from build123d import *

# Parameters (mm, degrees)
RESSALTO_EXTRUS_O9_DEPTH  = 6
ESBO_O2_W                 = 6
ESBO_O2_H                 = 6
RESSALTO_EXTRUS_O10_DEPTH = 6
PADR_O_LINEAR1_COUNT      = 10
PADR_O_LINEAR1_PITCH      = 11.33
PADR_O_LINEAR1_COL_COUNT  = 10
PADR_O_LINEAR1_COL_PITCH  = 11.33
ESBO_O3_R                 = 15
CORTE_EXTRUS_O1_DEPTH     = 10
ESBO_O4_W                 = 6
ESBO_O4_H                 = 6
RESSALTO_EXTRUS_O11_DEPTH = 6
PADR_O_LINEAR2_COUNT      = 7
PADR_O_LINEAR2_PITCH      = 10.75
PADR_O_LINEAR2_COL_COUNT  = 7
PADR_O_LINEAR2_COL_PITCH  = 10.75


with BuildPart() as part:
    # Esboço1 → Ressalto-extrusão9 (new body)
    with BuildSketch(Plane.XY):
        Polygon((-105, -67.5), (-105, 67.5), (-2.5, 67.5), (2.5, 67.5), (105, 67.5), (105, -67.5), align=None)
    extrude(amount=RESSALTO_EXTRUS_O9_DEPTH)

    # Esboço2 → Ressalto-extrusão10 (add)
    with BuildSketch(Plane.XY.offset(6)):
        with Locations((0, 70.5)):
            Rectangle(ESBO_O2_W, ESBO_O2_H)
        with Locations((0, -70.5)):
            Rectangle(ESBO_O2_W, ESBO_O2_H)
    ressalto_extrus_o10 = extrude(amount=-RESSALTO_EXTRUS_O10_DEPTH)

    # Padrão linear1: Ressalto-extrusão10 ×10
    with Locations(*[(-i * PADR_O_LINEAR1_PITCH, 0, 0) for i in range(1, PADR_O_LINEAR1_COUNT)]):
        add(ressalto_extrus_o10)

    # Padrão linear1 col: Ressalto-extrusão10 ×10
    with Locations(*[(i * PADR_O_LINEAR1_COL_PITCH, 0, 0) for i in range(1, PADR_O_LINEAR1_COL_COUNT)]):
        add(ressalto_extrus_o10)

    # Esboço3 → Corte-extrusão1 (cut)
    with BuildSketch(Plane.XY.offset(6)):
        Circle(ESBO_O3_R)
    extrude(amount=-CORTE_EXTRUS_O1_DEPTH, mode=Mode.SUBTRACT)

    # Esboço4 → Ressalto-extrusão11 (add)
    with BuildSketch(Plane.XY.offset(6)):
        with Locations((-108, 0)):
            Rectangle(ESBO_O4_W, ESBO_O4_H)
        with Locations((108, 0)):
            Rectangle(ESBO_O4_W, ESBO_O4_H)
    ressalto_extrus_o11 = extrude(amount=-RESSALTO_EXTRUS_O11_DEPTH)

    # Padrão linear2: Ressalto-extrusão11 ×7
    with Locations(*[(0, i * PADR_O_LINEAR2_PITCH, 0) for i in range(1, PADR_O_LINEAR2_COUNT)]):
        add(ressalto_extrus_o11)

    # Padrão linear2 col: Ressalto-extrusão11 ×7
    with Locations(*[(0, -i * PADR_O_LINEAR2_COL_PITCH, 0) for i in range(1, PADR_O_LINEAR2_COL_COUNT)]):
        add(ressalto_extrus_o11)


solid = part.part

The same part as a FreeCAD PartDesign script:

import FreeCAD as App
import Part
import Sketcher
from FreeCAD import Vector

doc = App.newDocument("Part")
params = doc.addObject("Spreadsheet::Sheet", "Params")
for row, (alias, value) in enumerate([
    ("sketch1_width", "210 mm"),
    ("sketch1_height", "135 mm"),
    ("pad1_length", "6 mm"),
    ("sketch2_width", "6 mm"),
    ("pad2_length", "6 mm"),
    ("linearpattern_pitch", "11.33 mm"),
    ("linearpattern2_pitch", "11.33 mm"),
    ("sketch3_diameter", "30 mm"),
    ("pocket1_length", "10 mm"),
    ("sketch4_width", "6 mm"),
    ("pad3_length", "6 mm"),
    ("linearpattern3_pitch", "10.75 mm"),
    ("linearpattern4_pitch", "10.75 mm"),
], start=1):
    params.set(f"A{row}", alias)
    params.set(f"B{row}", "=" + value)
    params.setAlias(f"B{row}", alias)

body = doc.addObject("PartDesign::Body", "Body")

# Sketch on XY plane
sketch1 = body.newObject("Sketcher::SketchObject", "Sketch")
sketch1.AttachmentSupport = (doc.getObject("XY_Plane"), [""])
sketch1.MapMode = "FlatFace"
sketch1.addGeometry(Part.LineSegment(Vector(-105, 67.5, 0), Vector(-105, -67.5, 0)), False)
sketch1.addGeometry(Part.LineSegment(Vector(-105, -67.5, 0), Vector(105, -67.5, 0)), False)
sketch1.addGeometry(Part.LineSegment(Vector(105, -67.5, 0), Vector(105, 67.5, 0)), False)
sketch1.addGeometry(Part.LineSegment(Vector(105, 67.5, 0), Vector(-105, 67.5, 0)), False)
sketch1.addConstraint(Sketcher.Constraint("Coincident", 0, 2, 1, 1))
sketch1.addConstraint(Sketcher.Constraint("Coincident", 1, 2, 2, 1))
sketch1.addConstraint(Sketcher.Constraint("Coincident", 2, 2, 3, 1))
sketch1.addConstraint(Sketcher.Constraint("Coincident", 3, 2, 0, 1))
sketch1.addConstraint(Sketcher.Constraint("Vertical", 0))
sketch1.addConstraint(Sketcher.Constraint("Horizontal", 1))
sketch1.addConstraint(Sketcher.Constraint("Vertical", 2))
sketch1.addConstraint(Sketcher.Constraint("Horizontal", 3))
sketch1.addConstraint(Sketcher.Constraint("Symmetric", 0, 2, 2, 2, -1, 1))
sketch1.addConstraint(Sketcher.Constraint("DistanceX", 1, 1, 1, 2, 210.0))
sketch1.addConstraint(Sketcher.Constraint("DistanceY", 0, 2, 0, 1, 135.0))
sketch1.setExpression("Constraints[9]", "Params.sketch1_width")
sketch1.setExpression("Constraints[10]", "Params.sketch1_height")
pad1 = body.newObject("PartDesign::Pad", "Pad")
pad1.Profile = sketch1
pad1.setExpression("Length", "Params.pad1_length")

# Sketch on XY plane
sketch2 = body.newObject("Sketcher::SketchObject", "Sketch001")
sketch2.AttachmentSupport = (doc.getObject("XY_Plane"), [""])
sketch2.MapMode = "FlatFace"
sketch2.AttachmentOffset = App.Placement(Vector(0, 0, 6), App.Rotation())
sketch2.addGeometry(Part.LineSegment(Vector(-3, 73.5, 0), Vector(-3, 67.5, 0)), False)
sketch2.addGeometry(Part.LineSegment(Vector(-3, 67.5, 0), Vector(3, 67.5, 0)), False)
sketch2.addGeometry(Part.LineSegment(Vector(3, 67.5, 0), Vector(3, 73.5, 0)), False)
sketch2.addGeometry(Part.LineSegment(Vector(3, 73.5, 0), Vector(-3, 73.5, 0)), False)
sketch2.addGeometry(Part.LineSegment(Vector(-3, -67.5, 0), Vector(-3, -73.5, 0)), False)
sketch2.addGeometry(Part.LineSegment(Vector(-3, -73.5, 0), Vector(3, -73.5, 0)), False)
sketch2.addGeometry(Part.LineSegment(Vector(3, -73.5, 0), Vector(3, -67.5, 0)), False)
sketch2.addGeometry(Part.LineSegment(Vector(3, -67.5, 0), Vector(-3, -67.5, 0)), False)
sketch2.addConstraint(Sketcher.Constraint("Coincident", 0, 2, 1, 1))
sketch2.addConstraint(Sketcher.Constraint("Coincident", 1, 2, 2, 1))
sketch2.addConstraint(Sketcher.Constraint("Coincident", 2, 2, 3, 1))
sketch2.addConstraint(Sketcher.Constraint("Coincident", 3, 2, 0, 1))
sketch2.addConstraint(Sketcher.Constraint("Coincident", 4, 2, 5, 1))
sketch2.addConstraint(Sketcher.Constraint("Coincident", 5, 2, 6, 1))
sketch2.addConstraint(Sketcher.Constraint("Coincident", 6, 2, 7, 1))
sketch2.addConstraint(Sketcher.Constraint("Coincident", 7, 2, 4, 1))
sketch2.addConstraint(Sketcher.Constraint("Vertical", 0))
sketch2.addConstraint(Sketcher.Constraint("Horizontal", 1))
sketch2.addConstraint(Sketcher.Constraint("Vertical", 2))
sketch2.addConstraint(Sketcher.Constraint("Horizontal", 3))
sketch2.addConstraint(Sketcher.Constraint("Vertical", 4))
sketch2.addConstraint(Sketcher.Constraint("Horizontal", 5))
sketch2.addConstraint(Sketcher.Constraint("Vertical", 6))
sketch2.addConstraint(Sketcher.Constraint("Horizontal", 7))
sketch2.addConstraint(Sketcher.Constraint("Symmetric", 2, 2, 4, 2, -1, 1))
sketch2.addConstraint(Sketcher.Constraint("Symmetric", 0, 2, 6, 2, -1, 1))
sketch2.addConstraint(Sketcher.Constraint("Vertical", 3, 2, 4, 2))
sketch2.addConstraint(Sketcher.Constraint("Equal", 7, 0))
sketch2.addConstraint(Sketcher.Constraint("DistanceX", 1, 1, 1, 2, 6.0))
sketch2.addConstraint(Sketcher.Constraint("DistanceY", 4, 2, 0, 2, 141.0))
sketch2.setExpression("Constraints[20]", "Params.sketch2_width")
pad2 = body.newObject("PartDesign::Pad", "Pad001")
pad2.Profile = sketch2
pad2.setExpression("Length", "Params.pad2_length")
pad2.Reversed = True
doc.recompute()

linearpattern = body.newObject("PartDesign::LinearPattern", "LinearPattern")
linearpattern.Originals = [pad2]
linearpattern.Direction = (doc.getObject("X_Axis"), [""])
linearpattern.Mode = "offset"
linearpattern.setExpression("Offset", "Params.linearpattern_pitch")
linearpattern.Occurrences = 10
linearpattern.Reversed = True
body.Tip = linearpattern
doc.recompute()

linearpattern2 = body.newObject("PartDesign::LinearPattern", "LinearPattern001")
linearpattern2.Originals = [pad2]
linearpattern2.Direction = (doc.getObject("X_Axis"), [""])
linearpattern2.Mode = "offset"
linearpattern2.setExpression("Offset", "Params.linearpattern2_pitch")
linearpattern2.Occurrences = 10
body.Tip = linearpattern2

# Sketch on XY plane
sketch3 = body.newObject("Sketcher::SketchObject", "Sketch002")
sketch3.AttachmentSupport = (doc.getObject("XY_Plane"), [""])
sketch3.MapMode = "FlatFace"
sketch3.AttachmentOffset = App.Placement(Vector(0, 0, 6), App.Rotation())
sketch3.addGeometry(Part.Circle(Vector(0, 0, 0), Vector(0, 0, 1), 15), False)
sketch3.addConstraint(Sketcher.Constraint("Coincident", 0, 3, -1, 1))
sketch3.addConstraint(Sketcher.Constraint("Diameter", 0, 30.0))
sketch3.setExpression("Constraints[1]", "Params.sketch3_diameter")
pocket1 = body.newObject("PartDesign::Pocket", "Pocket")
pocket1.Profile = sketch3
pocket1.setExpression("Length", "Params.pocket1_length")

# Sketch on XY plane
sketch4 = body.newObject("Sketcher::SketchObject", "Sketch003")
sketch4.AttachmentSupport = (doc.getObject("XY_Plane"), [""])
sketch4.MapMode = "FlatFace"
sketch4.AttachmentOffset = App.Placement(Vector(0, 0, 6), App.Rotation())
sketch4.addGeometry(Part.LineSegment(Vector(-111, 3, 0), Vector(-111, -3, 0)), False)
sketch4.addGeometry(Part.LineSegment(Vector(-111, -3, 0), Vector(-105, -3, 0)), False)
sketch4.addGeometry(Part.LineSegment(Vector(-105, -3, 0), Vector(-105, 3, 0)), False)
sketch4.addGeometry(Part.LineSegment(Vector(-105, 3, 0), Vector(-111, 3, 0)), False)
sketch4.addGeometry(Part.LineSegment(Vector(105, 3, 0), Vector(105, -3, 0)), False)
sketch4.addGeometry(Part.LineSegment(Vector(105, -3, 0), Vector(111, -3, 0)), False)
sketch4.addGeometry(Part.LineSegment(Vector(111, -3, 0), Vector(111, 3, 0)), False)
sketch4.addGeometry(Part.LineSegment(Vector(111, 3, 0), Vector(105, 3, 0)), False)
sketch4.addConstraint(Sketcher.Constraint("Coincident", 0, 2, 1, 1))
sketch4.addConstraint(Sketcher.Constraint("Coincident", 1, 2, 2, 1))
sketch4.addConstraint(Sketcher.Constraint("Coincident", 2, 2, 3, 1))
sketch4.addConstraint(Sketcher.Constraint("Coincident", 3, 2, 0, 1))
sketch4.addConstraint(Sketcher.Constraint("Coincident", 4, 2, 5, 1))
sketch4.addConstraint(Sketcher.Constraint("Coincident", 5, 2, 6, 1))
sketch4.addConstraint(Sketcher.Constraint("Coincident", 6, 2, 7, 1))
sketch4.addConstraint(Sketcher.Constraint("Coincident", 7, 2, 4, 1))
sketch4.addConstraint(Sketcher.Constraint("Vertical", 0))
sketch4.addConstraint(Sketcher.Constraint("Horizontal", 1))
sketch4.addConstraint(Sketcher.Constraint("Vertical", 2))
sketch4.addConstraint(Sketcher.Constraint("Horizontal", 3))
sketch4.addConstraint(Sketcher.Constraint("Vertical", 4))
sketch4.addConstraint(Sketcher.Constraint("Horizontal", 5))
sketch4.addConstraint(Sketcher.Constraint("Vertical", 6))
sketch4.addConstraint(Sketcher.Constraint("Horizontal", 7))
sketch4.addConstraint(Sketcher.Constraint("Symmetric", 2, 2, 4, 2, -1, 1))
sketch4.addConstraint(Sketcher.Constraint("Symmetric", 0, 2, 6, 2, -1, 1))
sketch4.addConstraint(Sketcher.Constraint("Horizontal", 1, 2, 4, 2))
sketch4.addConstraint(Sketcher.Constraint("Equal", 7, 0))
sketch4.addConstraint(Sketcher.Constraint("DistanceX", 1, 1, 1, 2, 6.0))
sketch4.addConstraint(Sketcher.Constraint("DistanceX", 0, 2, -1, 1, 111.0))
sketch4.setExpression("Constraints[20]", "Params.sketch4_width")
pad3 = body.newObject("PartDesign::Pad", "Pad002")
pad3.Profile = sketch4
pad3.setExpression("Length", "Params.pad3_length")
pad3.Reversed = True
doc.recompute()

linearpattern3 = body.newObject("PartDesign::LinearPattern", "LinearPattern002")
linearpattern3.Originals = [pad3]
linearpattern3.Direction = (doc.getObject("Y_Axis"), [""])
linearpattern3.Mode = "offset"
linearpattern3.setExpression("Offset", "Params.linearpattern3_pitch")
linearpattern3.Occurrences = 7
body.Tip = linearpattern3
doc.recompute()

linearpattern4 = body.newObject("PartDesign::LinearPattern", "LinearPattern003")
linearpattern4.Originals = [pad3]
linearpattern4.Direction = (doc.getObject("Y_Axis"), [""])
linearpattern4.Mode = "offset"
linearpattern4.setExpression("Offset", "Params.linearpattern4_pitch")
linearpattern4.Occurrences = 7
linearpattern4.Reversed = True
body.Tip = linearpattern4

doc.recompute()
